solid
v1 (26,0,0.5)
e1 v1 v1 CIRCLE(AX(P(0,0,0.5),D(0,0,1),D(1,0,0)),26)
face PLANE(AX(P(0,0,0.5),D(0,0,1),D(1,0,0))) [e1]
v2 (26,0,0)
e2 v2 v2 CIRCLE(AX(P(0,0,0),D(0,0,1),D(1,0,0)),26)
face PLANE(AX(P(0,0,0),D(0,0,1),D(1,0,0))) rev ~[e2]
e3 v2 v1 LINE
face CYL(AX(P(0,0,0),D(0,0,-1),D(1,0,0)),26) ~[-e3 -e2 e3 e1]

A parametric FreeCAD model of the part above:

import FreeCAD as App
import Part
import Sketcher
Q = App.Units.Quantity

doc = App.newDocument("Part")
params = doc.addObject("Spreadsheet::Sheet", "Params")
for row, (alias, value) in enumerate([
    ("sketch1_diameter", "52 mm"),
    ("pad1_length", "0.5 mm"),
], start=1):
    params.set(f"A{row}", alias)
    params.set(f"B{row}", "=" + value)
    params.setAlias(f"B{row}", alias)

body = doc.addObject("PartDesign::Body", "Body")

sketch1 = doc.addObject("Sketcher::SketchObject", "Sketch")
body.addObject(sketch1)
sketch1.AttachmentSupport = (doc.XY_Plane, [""])
sketch1.MapMode = "FlatFace"
sketch1.addGeometry(Part.Circle(App.Vector(0, 0, 0), App.Vector(0, 0, 1), 26), False)
sketch1.addConstraint([
    Sketcher.Constraint("Coincident", 0, 3, -1, 1),
    Sketcher.Constraint("Diameter", 0, Q("52 mm")),
])
sketch1.setExpression("Constraints[1]", "Params.sketch1_diameter")
pad1 = doc.addObject("PartDesign::Pad", "Pad")
body.addObject(pad1)
pad1.Profile = sketch1
pad1.setExpression("Length", "Params.pad1_length")

doc.recompute()
